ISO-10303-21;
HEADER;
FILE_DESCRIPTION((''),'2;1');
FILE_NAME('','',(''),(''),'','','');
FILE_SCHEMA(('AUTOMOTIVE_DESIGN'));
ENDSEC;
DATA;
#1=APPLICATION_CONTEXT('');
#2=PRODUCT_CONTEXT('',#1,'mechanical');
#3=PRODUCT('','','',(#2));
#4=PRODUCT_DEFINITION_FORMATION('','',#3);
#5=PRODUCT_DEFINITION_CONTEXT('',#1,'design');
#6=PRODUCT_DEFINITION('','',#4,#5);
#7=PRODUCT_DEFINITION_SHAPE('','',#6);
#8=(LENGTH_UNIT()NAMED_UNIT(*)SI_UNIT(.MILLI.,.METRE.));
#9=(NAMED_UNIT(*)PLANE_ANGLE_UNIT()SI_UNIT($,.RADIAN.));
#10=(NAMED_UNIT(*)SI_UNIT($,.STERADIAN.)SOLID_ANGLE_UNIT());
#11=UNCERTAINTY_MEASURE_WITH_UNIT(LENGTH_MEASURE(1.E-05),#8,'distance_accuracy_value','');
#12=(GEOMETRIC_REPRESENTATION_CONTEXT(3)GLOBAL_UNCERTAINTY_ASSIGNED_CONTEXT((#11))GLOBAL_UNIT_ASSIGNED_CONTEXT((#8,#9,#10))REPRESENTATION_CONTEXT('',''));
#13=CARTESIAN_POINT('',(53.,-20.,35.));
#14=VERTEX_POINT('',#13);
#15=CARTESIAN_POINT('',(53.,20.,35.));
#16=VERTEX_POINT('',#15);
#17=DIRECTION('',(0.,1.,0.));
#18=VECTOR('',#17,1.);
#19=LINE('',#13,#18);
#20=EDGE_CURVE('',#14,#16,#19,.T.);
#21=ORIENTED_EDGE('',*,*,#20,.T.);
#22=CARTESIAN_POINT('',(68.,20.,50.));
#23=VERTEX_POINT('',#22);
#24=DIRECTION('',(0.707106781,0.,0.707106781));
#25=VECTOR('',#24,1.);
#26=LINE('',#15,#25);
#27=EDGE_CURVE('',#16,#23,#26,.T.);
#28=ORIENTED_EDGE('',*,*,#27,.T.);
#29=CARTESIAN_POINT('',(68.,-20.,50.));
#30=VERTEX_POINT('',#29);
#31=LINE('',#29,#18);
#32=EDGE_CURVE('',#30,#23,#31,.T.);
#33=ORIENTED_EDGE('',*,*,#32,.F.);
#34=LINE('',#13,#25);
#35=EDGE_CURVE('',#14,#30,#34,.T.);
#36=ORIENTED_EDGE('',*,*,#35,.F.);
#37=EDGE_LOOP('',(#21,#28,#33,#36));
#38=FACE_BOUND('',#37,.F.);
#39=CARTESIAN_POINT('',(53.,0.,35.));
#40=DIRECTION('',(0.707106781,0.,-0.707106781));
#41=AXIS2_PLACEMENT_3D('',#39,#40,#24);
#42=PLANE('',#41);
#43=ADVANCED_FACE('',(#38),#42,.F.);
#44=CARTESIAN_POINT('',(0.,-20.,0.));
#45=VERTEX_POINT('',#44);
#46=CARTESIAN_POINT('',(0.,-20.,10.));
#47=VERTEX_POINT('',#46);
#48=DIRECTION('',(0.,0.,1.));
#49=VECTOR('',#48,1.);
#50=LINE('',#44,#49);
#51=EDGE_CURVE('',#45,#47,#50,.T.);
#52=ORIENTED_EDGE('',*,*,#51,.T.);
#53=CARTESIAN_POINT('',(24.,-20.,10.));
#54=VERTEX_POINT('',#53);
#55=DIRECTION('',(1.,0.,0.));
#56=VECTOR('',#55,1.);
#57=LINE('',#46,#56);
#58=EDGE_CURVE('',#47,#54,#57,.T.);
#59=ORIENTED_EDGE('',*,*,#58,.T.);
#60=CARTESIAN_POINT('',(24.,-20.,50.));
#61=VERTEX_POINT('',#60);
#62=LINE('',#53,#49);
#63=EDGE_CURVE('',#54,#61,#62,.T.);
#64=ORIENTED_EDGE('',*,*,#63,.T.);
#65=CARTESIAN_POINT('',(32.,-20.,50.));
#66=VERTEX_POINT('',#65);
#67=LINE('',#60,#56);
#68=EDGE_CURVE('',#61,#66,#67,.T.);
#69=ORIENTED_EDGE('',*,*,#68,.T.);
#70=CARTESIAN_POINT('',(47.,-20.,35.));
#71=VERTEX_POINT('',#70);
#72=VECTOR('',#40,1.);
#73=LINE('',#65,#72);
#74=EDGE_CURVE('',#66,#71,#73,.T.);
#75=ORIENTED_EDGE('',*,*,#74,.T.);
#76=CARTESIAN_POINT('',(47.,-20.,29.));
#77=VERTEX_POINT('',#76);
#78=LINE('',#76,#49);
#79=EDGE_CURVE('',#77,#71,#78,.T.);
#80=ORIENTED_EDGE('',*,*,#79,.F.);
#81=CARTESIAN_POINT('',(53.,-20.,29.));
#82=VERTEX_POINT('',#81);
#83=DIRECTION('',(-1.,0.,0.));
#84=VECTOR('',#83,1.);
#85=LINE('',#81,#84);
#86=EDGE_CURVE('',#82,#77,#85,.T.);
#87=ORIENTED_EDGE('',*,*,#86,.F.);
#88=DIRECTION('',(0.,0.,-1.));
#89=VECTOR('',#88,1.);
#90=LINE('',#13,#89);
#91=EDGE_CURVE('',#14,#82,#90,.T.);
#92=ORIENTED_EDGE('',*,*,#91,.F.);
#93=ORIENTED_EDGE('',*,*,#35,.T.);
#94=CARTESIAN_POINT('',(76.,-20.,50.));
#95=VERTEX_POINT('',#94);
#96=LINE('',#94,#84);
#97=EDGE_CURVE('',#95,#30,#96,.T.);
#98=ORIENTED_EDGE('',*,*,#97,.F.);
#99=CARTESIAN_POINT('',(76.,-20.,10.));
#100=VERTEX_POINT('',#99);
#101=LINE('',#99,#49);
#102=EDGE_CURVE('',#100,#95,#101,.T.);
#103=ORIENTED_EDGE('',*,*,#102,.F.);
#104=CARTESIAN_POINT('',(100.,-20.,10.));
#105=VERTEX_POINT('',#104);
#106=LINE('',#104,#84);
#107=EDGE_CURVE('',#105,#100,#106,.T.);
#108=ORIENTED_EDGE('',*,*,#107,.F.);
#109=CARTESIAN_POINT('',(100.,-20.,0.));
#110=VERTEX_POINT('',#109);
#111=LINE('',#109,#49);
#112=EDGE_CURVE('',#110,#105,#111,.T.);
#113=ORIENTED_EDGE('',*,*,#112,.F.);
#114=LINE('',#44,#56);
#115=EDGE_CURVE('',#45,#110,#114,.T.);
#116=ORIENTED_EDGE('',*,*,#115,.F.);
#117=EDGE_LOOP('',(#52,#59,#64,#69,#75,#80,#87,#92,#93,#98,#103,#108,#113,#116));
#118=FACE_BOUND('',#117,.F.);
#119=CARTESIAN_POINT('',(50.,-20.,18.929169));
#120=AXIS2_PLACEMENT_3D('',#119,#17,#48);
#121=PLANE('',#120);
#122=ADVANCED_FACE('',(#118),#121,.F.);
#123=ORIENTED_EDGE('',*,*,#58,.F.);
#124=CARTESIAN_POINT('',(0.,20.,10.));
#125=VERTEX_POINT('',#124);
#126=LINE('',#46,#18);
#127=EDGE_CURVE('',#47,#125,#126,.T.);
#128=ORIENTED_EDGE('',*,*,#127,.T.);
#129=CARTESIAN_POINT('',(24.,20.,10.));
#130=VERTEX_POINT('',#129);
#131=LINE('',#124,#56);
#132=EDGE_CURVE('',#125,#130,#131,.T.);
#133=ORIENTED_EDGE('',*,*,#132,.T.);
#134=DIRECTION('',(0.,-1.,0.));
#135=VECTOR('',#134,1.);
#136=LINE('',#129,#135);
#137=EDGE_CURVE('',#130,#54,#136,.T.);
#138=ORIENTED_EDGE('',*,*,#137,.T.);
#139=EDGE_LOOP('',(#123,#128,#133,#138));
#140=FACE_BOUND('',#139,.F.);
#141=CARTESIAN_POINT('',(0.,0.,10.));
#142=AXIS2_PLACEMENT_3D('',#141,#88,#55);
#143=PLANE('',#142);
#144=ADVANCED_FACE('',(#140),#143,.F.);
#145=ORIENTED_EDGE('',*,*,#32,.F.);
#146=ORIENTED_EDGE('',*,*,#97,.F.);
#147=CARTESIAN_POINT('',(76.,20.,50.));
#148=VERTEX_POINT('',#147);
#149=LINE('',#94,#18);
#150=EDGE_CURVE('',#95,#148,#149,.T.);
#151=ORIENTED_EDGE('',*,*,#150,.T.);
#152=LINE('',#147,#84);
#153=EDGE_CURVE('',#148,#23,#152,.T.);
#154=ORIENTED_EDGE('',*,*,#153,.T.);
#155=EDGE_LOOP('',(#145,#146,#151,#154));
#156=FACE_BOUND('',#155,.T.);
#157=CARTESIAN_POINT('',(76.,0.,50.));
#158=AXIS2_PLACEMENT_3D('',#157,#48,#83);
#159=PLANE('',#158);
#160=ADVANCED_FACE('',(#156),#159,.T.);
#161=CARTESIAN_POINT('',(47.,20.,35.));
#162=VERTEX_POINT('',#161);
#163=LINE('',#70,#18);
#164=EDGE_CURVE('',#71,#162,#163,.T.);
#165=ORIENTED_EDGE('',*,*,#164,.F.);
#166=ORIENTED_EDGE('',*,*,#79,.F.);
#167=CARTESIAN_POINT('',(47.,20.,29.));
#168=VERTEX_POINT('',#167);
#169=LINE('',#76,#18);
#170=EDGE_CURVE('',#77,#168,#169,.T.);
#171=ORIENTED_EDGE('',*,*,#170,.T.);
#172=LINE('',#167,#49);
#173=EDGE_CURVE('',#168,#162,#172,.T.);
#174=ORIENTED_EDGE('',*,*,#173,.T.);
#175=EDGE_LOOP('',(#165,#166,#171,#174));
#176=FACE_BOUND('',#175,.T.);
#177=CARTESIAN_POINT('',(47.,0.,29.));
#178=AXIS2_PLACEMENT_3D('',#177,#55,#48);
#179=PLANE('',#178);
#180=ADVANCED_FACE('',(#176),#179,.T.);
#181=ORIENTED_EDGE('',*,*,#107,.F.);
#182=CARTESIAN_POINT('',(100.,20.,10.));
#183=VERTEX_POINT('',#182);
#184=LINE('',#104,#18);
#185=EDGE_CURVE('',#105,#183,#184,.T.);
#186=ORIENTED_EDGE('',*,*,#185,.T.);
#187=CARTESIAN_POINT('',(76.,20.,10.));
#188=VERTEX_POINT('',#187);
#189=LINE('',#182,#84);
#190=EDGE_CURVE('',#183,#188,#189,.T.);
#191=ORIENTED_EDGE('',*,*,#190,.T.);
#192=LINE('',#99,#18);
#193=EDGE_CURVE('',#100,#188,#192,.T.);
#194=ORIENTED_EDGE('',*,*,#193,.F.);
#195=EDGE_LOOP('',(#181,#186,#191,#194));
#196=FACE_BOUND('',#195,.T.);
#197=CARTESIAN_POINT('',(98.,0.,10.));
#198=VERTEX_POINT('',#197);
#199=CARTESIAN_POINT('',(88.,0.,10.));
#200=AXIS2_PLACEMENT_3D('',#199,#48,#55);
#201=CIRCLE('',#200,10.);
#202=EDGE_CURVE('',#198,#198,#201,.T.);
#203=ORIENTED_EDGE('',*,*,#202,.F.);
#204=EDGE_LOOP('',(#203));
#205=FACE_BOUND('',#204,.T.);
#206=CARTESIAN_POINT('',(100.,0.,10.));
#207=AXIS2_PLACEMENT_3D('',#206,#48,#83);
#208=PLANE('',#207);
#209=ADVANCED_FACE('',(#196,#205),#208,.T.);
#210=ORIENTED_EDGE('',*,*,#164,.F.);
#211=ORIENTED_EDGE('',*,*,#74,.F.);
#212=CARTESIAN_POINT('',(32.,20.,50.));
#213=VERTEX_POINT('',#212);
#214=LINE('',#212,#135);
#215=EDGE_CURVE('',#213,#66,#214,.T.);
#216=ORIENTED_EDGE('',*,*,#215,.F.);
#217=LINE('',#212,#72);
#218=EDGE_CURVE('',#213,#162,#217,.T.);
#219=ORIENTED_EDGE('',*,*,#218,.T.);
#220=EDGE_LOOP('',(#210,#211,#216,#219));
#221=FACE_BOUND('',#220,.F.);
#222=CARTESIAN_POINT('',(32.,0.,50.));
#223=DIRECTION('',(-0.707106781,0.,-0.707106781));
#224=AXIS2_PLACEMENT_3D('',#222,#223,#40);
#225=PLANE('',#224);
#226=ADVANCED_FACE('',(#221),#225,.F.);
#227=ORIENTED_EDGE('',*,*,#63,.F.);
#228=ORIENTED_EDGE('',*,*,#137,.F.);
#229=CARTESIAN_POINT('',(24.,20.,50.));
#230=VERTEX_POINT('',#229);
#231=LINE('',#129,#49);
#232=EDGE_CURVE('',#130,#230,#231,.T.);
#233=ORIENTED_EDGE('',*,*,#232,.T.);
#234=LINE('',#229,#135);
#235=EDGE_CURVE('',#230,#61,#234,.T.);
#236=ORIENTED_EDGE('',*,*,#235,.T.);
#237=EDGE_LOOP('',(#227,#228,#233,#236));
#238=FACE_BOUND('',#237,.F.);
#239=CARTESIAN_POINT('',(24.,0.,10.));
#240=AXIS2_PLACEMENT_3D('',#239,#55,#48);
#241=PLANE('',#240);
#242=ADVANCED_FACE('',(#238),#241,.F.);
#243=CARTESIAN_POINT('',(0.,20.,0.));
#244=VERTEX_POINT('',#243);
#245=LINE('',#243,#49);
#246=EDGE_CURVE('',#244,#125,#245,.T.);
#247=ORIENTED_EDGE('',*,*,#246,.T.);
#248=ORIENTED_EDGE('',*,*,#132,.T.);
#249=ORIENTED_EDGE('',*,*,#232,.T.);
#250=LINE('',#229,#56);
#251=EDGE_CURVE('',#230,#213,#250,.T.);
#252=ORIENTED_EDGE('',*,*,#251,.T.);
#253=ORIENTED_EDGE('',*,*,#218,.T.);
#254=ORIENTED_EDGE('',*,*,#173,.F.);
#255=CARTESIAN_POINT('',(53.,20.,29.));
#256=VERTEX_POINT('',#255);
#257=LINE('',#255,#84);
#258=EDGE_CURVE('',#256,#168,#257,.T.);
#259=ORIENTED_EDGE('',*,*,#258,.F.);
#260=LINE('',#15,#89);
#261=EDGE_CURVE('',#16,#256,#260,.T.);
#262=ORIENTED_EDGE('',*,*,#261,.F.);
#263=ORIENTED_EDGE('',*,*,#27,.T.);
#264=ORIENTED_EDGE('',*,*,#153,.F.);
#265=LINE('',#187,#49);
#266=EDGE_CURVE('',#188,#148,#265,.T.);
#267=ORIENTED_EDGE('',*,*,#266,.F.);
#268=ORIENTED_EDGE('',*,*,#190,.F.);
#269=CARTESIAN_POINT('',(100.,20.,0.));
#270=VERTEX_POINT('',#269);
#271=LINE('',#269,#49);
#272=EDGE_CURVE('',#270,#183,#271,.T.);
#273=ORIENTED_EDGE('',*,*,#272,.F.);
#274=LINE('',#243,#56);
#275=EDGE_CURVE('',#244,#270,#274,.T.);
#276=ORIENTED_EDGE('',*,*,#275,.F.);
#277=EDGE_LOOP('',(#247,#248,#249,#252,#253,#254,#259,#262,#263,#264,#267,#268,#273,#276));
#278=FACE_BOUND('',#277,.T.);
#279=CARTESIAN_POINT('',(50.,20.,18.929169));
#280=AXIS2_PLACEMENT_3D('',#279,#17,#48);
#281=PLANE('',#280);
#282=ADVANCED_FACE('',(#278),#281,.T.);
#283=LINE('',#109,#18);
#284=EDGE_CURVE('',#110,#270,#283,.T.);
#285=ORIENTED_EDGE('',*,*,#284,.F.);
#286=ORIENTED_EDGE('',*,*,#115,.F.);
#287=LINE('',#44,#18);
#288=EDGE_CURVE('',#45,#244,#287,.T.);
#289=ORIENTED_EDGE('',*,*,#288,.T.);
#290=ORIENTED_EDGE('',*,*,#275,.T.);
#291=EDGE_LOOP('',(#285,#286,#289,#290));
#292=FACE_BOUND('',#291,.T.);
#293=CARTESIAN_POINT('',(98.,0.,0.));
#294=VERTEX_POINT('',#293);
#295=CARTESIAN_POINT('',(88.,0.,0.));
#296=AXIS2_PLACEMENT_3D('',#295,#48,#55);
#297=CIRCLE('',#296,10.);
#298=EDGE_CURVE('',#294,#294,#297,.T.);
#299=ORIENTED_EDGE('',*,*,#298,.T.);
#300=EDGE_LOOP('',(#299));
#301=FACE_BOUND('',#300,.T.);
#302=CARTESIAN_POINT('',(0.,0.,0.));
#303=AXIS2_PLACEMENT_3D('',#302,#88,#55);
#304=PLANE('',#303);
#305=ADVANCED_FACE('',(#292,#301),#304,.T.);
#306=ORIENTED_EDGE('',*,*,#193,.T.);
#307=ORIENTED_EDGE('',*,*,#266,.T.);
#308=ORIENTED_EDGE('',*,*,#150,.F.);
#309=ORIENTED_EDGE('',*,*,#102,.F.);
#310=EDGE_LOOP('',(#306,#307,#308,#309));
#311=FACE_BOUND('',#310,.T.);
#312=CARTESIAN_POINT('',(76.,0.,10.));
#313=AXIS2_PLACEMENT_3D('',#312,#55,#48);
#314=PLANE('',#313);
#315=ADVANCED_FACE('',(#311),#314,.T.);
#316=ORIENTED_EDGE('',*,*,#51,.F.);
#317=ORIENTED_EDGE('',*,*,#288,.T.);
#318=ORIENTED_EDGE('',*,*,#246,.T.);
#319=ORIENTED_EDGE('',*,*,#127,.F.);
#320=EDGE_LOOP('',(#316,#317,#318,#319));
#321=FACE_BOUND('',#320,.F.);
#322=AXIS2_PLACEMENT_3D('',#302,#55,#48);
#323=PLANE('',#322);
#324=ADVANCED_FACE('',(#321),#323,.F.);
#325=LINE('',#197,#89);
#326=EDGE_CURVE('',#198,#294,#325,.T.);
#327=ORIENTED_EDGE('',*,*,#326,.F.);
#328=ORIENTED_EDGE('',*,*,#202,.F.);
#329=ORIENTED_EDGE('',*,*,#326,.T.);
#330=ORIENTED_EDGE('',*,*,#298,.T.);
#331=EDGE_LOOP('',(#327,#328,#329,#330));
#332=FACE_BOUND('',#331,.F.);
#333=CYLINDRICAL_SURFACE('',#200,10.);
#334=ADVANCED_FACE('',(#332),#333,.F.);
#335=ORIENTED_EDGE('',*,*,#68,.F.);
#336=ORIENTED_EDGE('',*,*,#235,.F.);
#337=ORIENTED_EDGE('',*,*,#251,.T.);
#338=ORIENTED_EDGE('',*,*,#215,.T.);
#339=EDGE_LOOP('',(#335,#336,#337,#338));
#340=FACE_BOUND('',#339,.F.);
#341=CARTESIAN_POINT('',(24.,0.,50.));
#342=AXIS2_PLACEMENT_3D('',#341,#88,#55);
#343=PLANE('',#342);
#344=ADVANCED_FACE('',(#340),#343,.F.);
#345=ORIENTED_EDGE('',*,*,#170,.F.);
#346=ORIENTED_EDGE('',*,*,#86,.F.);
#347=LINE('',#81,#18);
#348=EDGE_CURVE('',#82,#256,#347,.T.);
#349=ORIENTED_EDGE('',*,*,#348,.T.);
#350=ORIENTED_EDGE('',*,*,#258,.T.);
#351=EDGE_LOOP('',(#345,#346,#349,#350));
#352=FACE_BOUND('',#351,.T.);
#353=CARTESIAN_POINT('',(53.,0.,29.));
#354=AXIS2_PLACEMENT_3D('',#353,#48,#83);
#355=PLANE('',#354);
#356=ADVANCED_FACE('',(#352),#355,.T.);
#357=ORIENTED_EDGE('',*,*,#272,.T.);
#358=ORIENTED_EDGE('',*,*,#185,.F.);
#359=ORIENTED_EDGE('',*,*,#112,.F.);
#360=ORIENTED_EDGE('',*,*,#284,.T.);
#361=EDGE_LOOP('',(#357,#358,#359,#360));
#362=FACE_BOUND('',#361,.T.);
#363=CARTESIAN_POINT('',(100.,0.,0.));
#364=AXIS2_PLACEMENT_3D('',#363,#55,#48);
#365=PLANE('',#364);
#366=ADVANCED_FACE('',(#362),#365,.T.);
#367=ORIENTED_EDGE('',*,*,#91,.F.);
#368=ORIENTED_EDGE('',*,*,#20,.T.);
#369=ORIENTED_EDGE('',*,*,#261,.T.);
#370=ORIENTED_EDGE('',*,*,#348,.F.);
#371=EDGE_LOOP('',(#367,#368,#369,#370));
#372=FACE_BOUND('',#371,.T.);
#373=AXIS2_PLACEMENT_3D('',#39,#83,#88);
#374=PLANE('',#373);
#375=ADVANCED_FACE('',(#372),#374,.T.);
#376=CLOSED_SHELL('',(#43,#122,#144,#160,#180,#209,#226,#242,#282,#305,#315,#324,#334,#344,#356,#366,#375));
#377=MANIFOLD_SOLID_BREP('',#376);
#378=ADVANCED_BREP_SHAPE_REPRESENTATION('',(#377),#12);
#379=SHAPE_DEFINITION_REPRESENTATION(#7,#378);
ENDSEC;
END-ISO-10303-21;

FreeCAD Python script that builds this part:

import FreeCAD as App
import Part
import Sketcher

V = App.Vector


def add_polygon(sketch, points):
    """Adds a closed chain of lines whose ends are joined by coincident constraints."""
    first, n = sketch.GeometryCount, len(points)
    for a, b in zip(points, points[1:] + points[:1]):
        sketch.addGeometry(Part.LineSegment(App.Vector(*a, 0), App.Vector(*b, 0)), False)
    for i in range(n):
        sketch.addConstraint(Sketcher.Constraint("Coincident", first + i, 2, first + (i + 1) % n, 1))

doc = App.newDocument("Part")
body = doc.addObject("PartDesign::Body", "Body")

sketch1 = body.newObject("Sketcher::SketchObject", "Sketch")
sketch1.AttachmentSupport = (doc.getObject("XZ_Plane"), [""])
sketch1.MapMode = "FlatFace"
add_polygon(sketch1, [(47, 35), (32, 50), (24, 50), (24, 10), (0, 10), (0, 0), (100, 0), (100, 10), (76, 10), (76, 50), (68, 50), (53, 35), (53, 29), (47, 29)])
sketch1.addConstraint([
    Sketcher.Constraint("Horizontal", 1),
    Sketcher.Constraint("Vertical", 2),
    Sketcher.Constraint("Horizontal", 3),
    Sketcher.Constraint("Vertical", 4),
    Sketcher.Constraint("Horizontal", 5),
    Sketcher.Constraint("Vertical", 6),
    Sketcher.Constraint("Horizontal", 7),
    Sketcher.Constraint("Vertical", 8),
    Sketcher.Constraint("Horizontal", 9),
    Sketcher.Constraint("Vertical", 11),
    Sketcher.Constraint("Horizontal", 12),
    Sketcher.Constraint("Vertical", 13),
    Sketcher.Constraint("Coincident", 4, 2, -1, 1),
    Sketcher.Constraint("Perpendicular", 0, 10),
    Sketcher.Constraint("Horizontal", 3, 2, 6, 2),
    Sketcher.Constraint("Horizontal", 1, 2, 8, 2),
    Sketcher.Constraint("Horizontal", 10, 2, 13, 2),
    Sketcher.Constraint("Equal", 3, 7),
    Sketcher.Constraint("Equal", 1, 9),
    Sketcher.Constraint("Equal", 12, 11),
    Sketcher.Constraint("Equal", 0, 10),
    Sketcher.Constraint("DistanceX", 1, 2, 1, 1, 8.0),
    Sketcher.Constraint("DistanceX", 3, 2, 3, 1, 24.0),
    Sketcher.Constraint("DistanceX", 5, 1, 5, 2, 100.0),
    Sketcher.Constraint("DistanceX", 12, 2, 12, 1, 6.0),
    Sketcher.Constraint("DistanceY", 2, 2, 2, 1, 40.0),
    Sketcher.Constraint("DistanceY", 4, 2, 4, 1, 10.0),
])
pad1 = body.newObject("PartDesign::Pad", "Pad")
pad1.Profile = sketch1
pad1.Type = "TwoLengths"
pad1.Length = 20
pad1.Length2 = 20
pad1.Reversed = True

sketch2 = body.newObject("Sketcher::SketchObject", "Sketch001")
sketch2.AttachmentSupport = (doc.getObject("XY_Plane"), [""])
sketch2.MapMode = "FlatFace"
sketch2.AttachmentOffset = App.Placement(V(0, 0, 10), App.Rotation())
sketch2.addGeometry(Part.Circle(V(88, 0, 0), V(0, 0, 1), 10), False)
sketch2.addConstraint([
    Sketcher.Constraint("PointOnObject", 0, 3, -1),
    Sketcher.Constraint("Diameter", 0, 20.0),
    Sketcher.Constraint("DistanceX", -1, 1, 0, 3, 88.0),
])
pocket1 = body.newObject("PartDesign::Pocket", "Pocket")
pocket1.Profile = sketch2
pocket1.Length = 10

doc.recompute()
